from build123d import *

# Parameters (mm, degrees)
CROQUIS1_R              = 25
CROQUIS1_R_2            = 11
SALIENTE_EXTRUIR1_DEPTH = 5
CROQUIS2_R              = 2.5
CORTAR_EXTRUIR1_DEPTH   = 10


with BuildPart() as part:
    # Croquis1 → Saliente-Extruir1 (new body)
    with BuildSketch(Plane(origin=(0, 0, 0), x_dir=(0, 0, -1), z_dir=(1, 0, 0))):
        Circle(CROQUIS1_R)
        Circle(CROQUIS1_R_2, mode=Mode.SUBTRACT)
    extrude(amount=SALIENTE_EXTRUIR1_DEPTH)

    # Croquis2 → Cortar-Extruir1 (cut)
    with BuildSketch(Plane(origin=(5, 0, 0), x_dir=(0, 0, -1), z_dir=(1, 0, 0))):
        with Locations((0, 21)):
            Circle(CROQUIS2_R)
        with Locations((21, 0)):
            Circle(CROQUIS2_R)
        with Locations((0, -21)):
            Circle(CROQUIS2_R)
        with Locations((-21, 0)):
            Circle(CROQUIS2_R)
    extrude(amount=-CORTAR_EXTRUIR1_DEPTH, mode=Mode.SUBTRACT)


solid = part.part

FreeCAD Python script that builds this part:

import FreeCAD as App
import Part
import Sketcher

V = App.Vector

doc = App.newDocument("Part")
params = doc.addObject("Spreadsheet::Sheet", "Params")
for row, (alias, value) in enumerate([
    ("sketch1_diameter", "50 mm"),
    ("sketch1_diameter2", "22 mm"),
    ("pad1_length", "5 mm"),
    ("sketch2_diameter", "5 mm"),
    ("pocket1_length", "10 mm"),
], start=1):
    params.set(f"A{row}", alias)
    params.set(f"B{row}", "=" + value)
    params.setAlias(f"B{row}", alias)

body = doc.addObject("PartDesign::Body", "Body")

# Sketch on YZ plane
sketch1 = body.newObject("Sketcher::SketchObject", "Sketch")
sketch1.AttachmentSupport = (doc.getObject("YZ_Plane"), [""])
sketch1.MapMode = "FlatFace"
sketch1.addGeometry(Part.Circle(V(0, 0, 0), V(0, 0, 1), 25), False)
sketch1.addGeometry(Part.Circle(V(0, 0, 0), V(0, 0, 1), 11), False)
sketch1.addConstraint(Sketcher.Constraint("Coincident", 0, 3, -1, 1))
sketch1.addConstraint(Sketcher.Constraint("Coincident", 1, 3, -1, 1))
sketch1.addConstraint(Sketcher.Constraint("Diameter", 0, 50.0))
sketch1.addConstraint(Sketcher.Constraint("Diameter", 1, 22.0))
sketch1.setExpression("Constraints[2]", "Params.sketch1_diameter")
sketch1.setExpression("Constraints[3]", "Params.sketch1_diameter2")
pad1 = body.newObject("PartDesign::Pad", "Pad")
pad1.Profile = sketch1
pad1.setExpression("Length", "Params.pad1_length")

# Sketch on YZ plane
sketch2 = body.newObject("Sketcher::SketchObject", "Sketch001")
sketch2.AttachmentSupport = (doc.getObject("YZ_Plane"), [""])
sketch2.MapMode = "FlatFace"
sketch2.AttachmentOffset = App.Placement(V(0, 0, 5), App.Rotation())
sketch2.addGeometry(Part.Circle(V(21, 0, 0), V(0, 0, 1), 2.5), False)
sketch2.addGeometry(Part.Circle(V(0, -21, 0), V(0, 0, 1), 2.5), False)
sketch2.addGeometry(Part.Circle(V(-21, 0, 0), V(0, 0, 1), 2.5), False)
sketch2.addGeometry(Part.Circle(V(0, 21, 0), V(0, 0, 1), 2.5), False)
sketch2.addConstraint(Sketcher.Constraint("Equal", 0, 1))
sketch2.addConstraint(Sketcher.Constraint("Equal", 1, 2))
sketch2.addConstraint(Sketcher.Constraint("Equal", 2, 3))
sketch2.addConstraint(Sketcher.Constraint("Symmetric", 0, 3, 2, 3, -1, 1))
sketch2.addConstraint(Sketcher.Constraint("Symmetric", 1, 3, 3, 3, -1, 1))
sketch2.addConstraint(Sketcher.Constraint("PointOnObject", 0, 3, -1))
sketch2.addConstraint(Sketcher.Constraint("PointOnObject", 1, 3, -2))
sketch2.addConstraint(Sketcher.Constraint("Diameter", 0, 5.0))
sketch2.addConstraint(Sketcher.Constraint("DistanceX", -1, 1, 0, 3, 21.0))
sketch2.addConstraint(Sketcher.Constraint("DistanceY", 1, 3, -1, 1, 21.0))
sketch2.setExpression("Constraints[7]", "Params.sketch2_diameter")
pocket1 = body.newObject("PartDesign::Pocket", "Pocket")
pocket1.Profile = sketch2
pocket1.setExpression("Length", "Params.pocket1_length")

doc.recompute()
